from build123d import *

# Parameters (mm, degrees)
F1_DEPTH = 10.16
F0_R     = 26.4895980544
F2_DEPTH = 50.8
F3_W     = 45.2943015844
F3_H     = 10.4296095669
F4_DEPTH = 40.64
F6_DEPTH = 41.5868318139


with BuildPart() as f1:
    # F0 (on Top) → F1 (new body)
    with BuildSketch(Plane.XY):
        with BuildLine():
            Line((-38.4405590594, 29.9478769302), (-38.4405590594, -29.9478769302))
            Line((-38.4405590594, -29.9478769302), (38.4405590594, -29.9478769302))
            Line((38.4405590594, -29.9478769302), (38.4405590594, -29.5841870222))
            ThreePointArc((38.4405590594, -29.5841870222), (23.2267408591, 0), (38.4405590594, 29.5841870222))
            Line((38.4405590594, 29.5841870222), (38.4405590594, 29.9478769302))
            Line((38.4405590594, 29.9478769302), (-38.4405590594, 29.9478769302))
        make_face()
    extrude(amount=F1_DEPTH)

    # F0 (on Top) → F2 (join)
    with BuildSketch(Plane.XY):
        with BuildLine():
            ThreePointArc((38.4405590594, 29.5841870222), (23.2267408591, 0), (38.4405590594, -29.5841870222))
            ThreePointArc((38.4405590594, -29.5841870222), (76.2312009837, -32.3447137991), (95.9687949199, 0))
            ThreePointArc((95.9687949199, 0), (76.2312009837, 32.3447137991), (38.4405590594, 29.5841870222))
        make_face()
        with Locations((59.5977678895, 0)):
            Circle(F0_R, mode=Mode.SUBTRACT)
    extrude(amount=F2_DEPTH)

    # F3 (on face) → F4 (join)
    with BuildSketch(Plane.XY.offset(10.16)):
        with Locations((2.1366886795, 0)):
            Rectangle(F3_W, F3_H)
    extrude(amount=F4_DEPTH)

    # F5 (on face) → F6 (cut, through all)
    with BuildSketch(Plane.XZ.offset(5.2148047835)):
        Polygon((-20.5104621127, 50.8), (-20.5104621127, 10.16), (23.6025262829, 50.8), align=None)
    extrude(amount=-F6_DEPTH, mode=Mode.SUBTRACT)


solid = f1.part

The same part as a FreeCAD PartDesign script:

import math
import FreeCAD as App
import Part
import Sketcher

V = App.Vector
Q = App.Units.Quantity

doc = App.newDocument("Part")
body = doc.addObject("PartDesign::Body", "Body")

# Sketch on XY plane
sketch1 = body.newObject("Sketcher::SketchObject", "Sketch")
sketch1.AttachmentSupport = (doc.getObject("XY_Plane"), [""])
sketch1.MapMode = "FlatFace"
sketch1.addGeometry([
    Part.LineSegment(V(-38.44, 29.95, 0), V(-38.44, -29.95, 0)),  # 0
    Part.LineSegment(V(-38.44, -29.95, 0), V(38.44, -29.95, 0)),  # 1
    Part.LineSegment(V(38.44, -29.95, 0), V(38.44, -29.58, 0)),  # 2
    Part.ArcOfCircle(Part.Circle(V(59.6, 0, 0), V(0, 0, 1), 36.37), math.radians(126), math.radians(234)),  # 3
    Part.LineSegment(V(38.44, 29.58, 0), V(38.44, 29.95, 0)),  # 4
    Part.LineSegment(V(38.44, 29.95, 0), V(-38.44, 29.95, 0)),  # 5
], False)
sketch1.addConstraint([
    Sketcher.Constraint("Coincident", 0, 2, 1, 1),
    Sketcher.Constraint("Coincident", 1, 2, 2, 1),
    Sketcher.Constraint("Coincident", 2, 2, 3, 2),
    Sketcher.Constraint("Coincident", 3, 1, 4, 1),
    Sketcher.Constraint("Coincident", 4, 2, 5, 1),
    Sketcher.Constraint("Coincident", 5, 2, 0, 1),
    Sketcher.Constraint("Vertical", 0),
    Sketcher.Constraint("Horizontal", 1),
    Sketcher.Constraint("Vertical", 2),
    Sketcher.Constraint("Vertical", 4),
    Sketcher.Constraint("Horizontal", 5),
    Sketcher.Constraint("Symmetric", 0, 2, 4, 2, -1, 1),
    Sketcher.Constraint("Symmetric", 2, 2, 3, 1, -1),
    Sketcher.Constraint("Radius", 3, Q("36.371027 mm")),
    Sketcher.Constraint("DistanceX", 1, 1, 1, 2, Q("76.881118 mm")),
    Sketcher.Constraint("DistanceY", 2, 1, 2, 2, Q("0.36369 mm")),
    Sketcher.Constraint("DistanceY", 0, 2, 0, 1, Q("59.895754 mm")),
])
pad1 = body.newObject("PartDesign::Pad", "Pad")
pad1.Profile = sketch1
pad1.Length = Q("0.4 in")

# Sketch on XY plane
sketch2 = body.newObject("Sketcher::SketchObject", "Sketch001")
sketch2.AttachmentSupport = (doc.getObject("XY_Plane"), [""])
sketch2.MapMode = "FlatFace"
sketch2.addGeometry([
    Part.Circle(V(60, 0, 0), V(0, 0, 1), 36),
    Part.Circle(V(60, 0, 0), V(0, 0, 1), 26),
], False)
sketch2.addConstraint([
    Sketcher.Constraint("Coincident", 1, 3, 0, 3),
    Sketcher.Constraint("PointOnObject", 0, 3, -1),
    Sketcher.Constraint("Diameter", 0, Q("72.742054 mm")),
    Sketcher.Constraint("Diameter", 1, Q("52.979196 mm")),
    Sketcher.Constraint("DistanceX", -1, 1, 0, 3, Q("59.597768 mm")),
])
pad2 = body.newObject("PartDesign::Pad", "Pad001")
pad2.Profile = sketch2
pad2.Length = Q("2 in")

# Sketch on XY plane
sketch3 = body.newObject("Sketcher::SketchObject", "Sketch002")
sketch3.AttachmentSupport = (doc.getObject("XY_Plane"), [""])
sketch3.MapMode = "FlatFace"
sketch3.AttachmentOffset = App.Placement(V(0, 0, 0.4 * 25.4), App.Rotation())
sketch3.addGeometry([
    Part.LineSegment(V(-21, 5, 0), V(-21, -5, 0)),
    Part.LineSegment(V(-21, -5, 0), V(25, -5, 0)),
    Part.LineSegment(V(25, -5, 0), V(25, 5, 0)),
    Part.LineSegment(V(25, 5, 0), V(-21, 5, 0)),
], False)
sketch3.addConstraint([
    Sketcher.Constraint("Coincident", 0, 2, 1, 1),
    Sketcher.Constraint("Coincident", 1, 2, 2, 1),
    Sketcher.Constraint("Coincident", 2, 2, 3, 1),
    Sketcher.Constraint("Coincident", 3, 2, 0, 1),
    Sketcher.Constraint("Vertical", 0),
    Sketcher.Constraint("Horizontal", 1),
    Sketcher.Constraint("Vertical", 2),
    Sketcher.Constraint("Horizontal", 3),
    Sketcher.Constraint("DistanceX", 1, 1, 1, 2, Q("45.294302 mm")),
    Sketcher.Constraint("DistanceY", 0, 2, 0, 1, Q("10.42961 mm")),
    Sketcher.Constraint("DistanceX", -1, 1, 1, 2, Q("24.783839 mm")),
    Sketcher.Constraint("DistanceY", 0, 2, -1, 1, Q("5.214805 mm")),
])
pad3 = body.newObject("PartDesign::Pad", "Pad002")
pad3.Profile = sketch3
pad3.Length = Q("1.6 in")

# Sketch on XZ plane
sketch4 = body.newObject("Sketcher::SketchObject", "Sketch003")
sketch4.AttachmentSupport = (doc.getObject("XZ_Plane"), [""])
sketch4.MapMode = "FlatFace"
sketch4.AttachmentOffset = App.Placement(V(0, 0, 5.214805), App.Rotation())
sketch4.addGeometry([
    Part.LineSegment(V(-21, 51, 0), V(-21, 10, 0)),
    Part.LineSegment(V(-21, 10, 0), V(24, 51, 0)),
    Part.LineSegment(V(24, 51, 0), V(-21, 51, 0)),
], False)
sketch4.addConstraint([
    Sketcher.Constraint("Coincident", 0, 2, 1, 1),
    Sketcher.Constraint("Coincident", 1, 2, 2, 1),
    Sketcher.Constraint("Coincident", 2, 2, 0, 1),
    Sketcher.Constraint("Vertical", 0),
    Sketcher.Constraint("Horizontal", 2),
    Sketcher.Constraint("DistanceY", 0, 2, 0, 1, Q("1.6 in")),
    Sketcher.Constraint("DistanceY", -1, 1, 1, 2, Q("2 in")),
    Sketcher.Constraint("DistanceX", 2, 2, 2, 1, Q("44.112988 mm")),
    Sketcher.Constraint("DistanceX", 0, 2, -1, 1, Q("20.510462 mm")),
])
pocket1 = body.newObject("PartDesign::Pocket", "Pocket")
pocket1.Profile = sketch4
pocket1.Type = "ThroughAll"

doc.recompute()
